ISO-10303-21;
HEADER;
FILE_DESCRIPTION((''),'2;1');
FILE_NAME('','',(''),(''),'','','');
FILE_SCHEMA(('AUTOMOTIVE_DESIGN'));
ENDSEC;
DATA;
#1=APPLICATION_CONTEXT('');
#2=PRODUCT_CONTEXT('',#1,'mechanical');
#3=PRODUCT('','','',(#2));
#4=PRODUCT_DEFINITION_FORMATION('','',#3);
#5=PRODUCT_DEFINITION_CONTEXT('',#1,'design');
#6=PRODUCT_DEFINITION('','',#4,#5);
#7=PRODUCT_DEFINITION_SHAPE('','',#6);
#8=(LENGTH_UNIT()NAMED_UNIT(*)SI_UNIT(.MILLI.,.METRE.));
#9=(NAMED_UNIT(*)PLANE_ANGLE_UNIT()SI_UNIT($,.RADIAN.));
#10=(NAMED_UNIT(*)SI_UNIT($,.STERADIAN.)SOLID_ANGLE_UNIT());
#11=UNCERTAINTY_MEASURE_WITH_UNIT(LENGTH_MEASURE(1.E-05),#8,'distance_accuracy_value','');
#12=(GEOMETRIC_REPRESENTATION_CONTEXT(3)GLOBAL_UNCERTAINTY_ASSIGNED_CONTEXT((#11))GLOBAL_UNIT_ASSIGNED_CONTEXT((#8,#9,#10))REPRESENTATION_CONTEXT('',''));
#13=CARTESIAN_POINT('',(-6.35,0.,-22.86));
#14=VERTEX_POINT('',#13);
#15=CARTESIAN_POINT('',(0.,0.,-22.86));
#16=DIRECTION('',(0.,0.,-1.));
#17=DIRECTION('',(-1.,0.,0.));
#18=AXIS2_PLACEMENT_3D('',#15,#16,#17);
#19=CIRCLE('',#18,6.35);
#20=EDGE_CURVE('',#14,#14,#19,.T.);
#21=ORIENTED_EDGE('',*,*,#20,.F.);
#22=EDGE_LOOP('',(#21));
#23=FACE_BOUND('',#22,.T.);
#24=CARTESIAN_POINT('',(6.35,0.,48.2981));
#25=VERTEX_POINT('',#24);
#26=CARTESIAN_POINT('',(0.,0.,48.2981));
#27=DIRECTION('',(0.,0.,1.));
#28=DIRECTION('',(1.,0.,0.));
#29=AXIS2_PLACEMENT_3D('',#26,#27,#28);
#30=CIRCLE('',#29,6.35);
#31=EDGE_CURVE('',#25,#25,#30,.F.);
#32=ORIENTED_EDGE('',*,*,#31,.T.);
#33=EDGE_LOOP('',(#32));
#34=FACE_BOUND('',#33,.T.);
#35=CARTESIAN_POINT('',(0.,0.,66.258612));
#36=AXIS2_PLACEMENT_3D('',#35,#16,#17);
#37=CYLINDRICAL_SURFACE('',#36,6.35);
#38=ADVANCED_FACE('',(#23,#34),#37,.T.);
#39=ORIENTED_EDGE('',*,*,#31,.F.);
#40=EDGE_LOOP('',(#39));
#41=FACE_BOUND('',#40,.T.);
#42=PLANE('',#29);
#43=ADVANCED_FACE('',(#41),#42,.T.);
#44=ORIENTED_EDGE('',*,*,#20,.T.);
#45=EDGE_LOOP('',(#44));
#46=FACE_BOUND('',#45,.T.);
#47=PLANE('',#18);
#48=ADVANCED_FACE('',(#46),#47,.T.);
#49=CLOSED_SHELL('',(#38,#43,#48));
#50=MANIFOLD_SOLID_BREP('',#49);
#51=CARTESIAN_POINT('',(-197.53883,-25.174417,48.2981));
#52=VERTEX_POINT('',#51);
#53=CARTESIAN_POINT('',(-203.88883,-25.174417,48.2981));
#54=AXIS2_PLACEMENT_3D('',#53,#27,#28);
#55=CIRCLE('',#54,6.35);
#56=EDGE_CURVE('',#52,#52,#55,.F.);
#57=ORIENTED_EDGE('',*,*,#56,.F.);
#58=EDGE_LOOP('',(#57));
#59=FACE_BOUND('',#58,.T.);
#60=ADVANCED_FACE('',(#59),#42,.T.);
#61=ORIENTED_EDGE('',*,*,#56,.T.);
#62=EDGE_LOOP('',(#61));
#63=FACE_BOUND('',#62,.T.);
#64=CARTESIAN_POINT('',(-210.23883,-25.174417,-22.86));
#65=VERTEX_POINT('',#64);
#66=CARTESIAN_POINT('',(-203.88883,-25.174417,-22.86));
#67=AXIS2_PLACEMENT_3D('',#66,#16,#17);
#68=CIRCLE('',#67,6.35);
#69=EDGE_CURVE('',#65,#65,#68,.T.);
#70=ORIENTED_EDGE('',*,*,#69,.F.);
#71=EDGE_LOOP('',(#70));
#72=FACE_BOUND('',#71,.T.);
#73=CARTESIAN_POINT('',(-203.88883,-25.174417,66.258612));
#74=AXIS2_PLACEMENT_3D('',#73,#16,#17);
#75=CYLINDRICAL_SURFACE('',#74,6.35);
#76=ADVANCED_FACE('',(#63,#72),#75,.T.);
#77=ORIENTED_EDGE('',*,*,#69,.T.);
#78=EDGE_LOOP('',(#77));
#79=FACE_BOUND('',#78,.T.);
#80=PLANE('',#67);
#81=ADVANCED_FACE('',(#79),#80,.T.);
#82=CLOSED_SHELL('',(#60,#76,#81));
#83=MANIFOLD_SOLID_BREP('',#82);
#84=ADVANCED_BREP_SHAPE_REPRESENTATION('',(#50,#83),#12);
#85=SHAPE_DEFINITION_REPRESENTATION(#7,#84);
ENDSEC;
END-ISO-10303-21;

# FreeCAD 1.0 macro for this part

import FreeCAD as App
import Part
import Sketcher
Q = App.Units.Quantity

doc = App.newDocument("Part")
body = doc.addObject("PartDesign::Body", "Body")

# Sketch on XY plane
sketch1 = doc.addObject("Sketcher::SketchObject", "Sketch")
body.addObject(sketch1)
sketch1.AttachmentSupport = (doc.XY_Plane, [""])
sketch1.MapMode = "FlatFace"
sketch1.AttachmentOffset = App.Placement(App.Vector(0, 0, -0.9 * 25.4), App.Rotation())
sketch1.addGeometry(Part.Circle(App.Vector(-203.88883, -25.174417, 0), App.Vector(0, 0, 1), 6.35), False)
sketch1.addConstraint(Sketcher.Constraint("Diameter", 0, Q("0.5 in")))
sketch1.addConstraint(Sketcher.Constraint("DistanceX", 0, 3, -1, 1, Q("203.88883 mm")))
sketch1.addConstraint(Sketcher.Constraint("DistanceY", 0, 3, -1, 1, Q("25.174417 mm")))
pad1 = doc.addObject("PartDesign::Pad", "Pad")
body.addObject(pad1)
pad1.Profile = sketch1
pad1.Length = Q("2.8015 in")
body2 = doc.addObject("PartDesign::Body", "Body001")

# Sketch on XY plane
sketch2 = doc.addObject("Sketcher::SketchObject", "Sketch001")
body2.addObject(sketch2)
sketch2.AttachmentSupport = (doc.getObject("XY_Plane001"), [""])
sketch2.MapMode = "FlatFace"
sketch2.AttachmentOffset = App.Placement(App.Vector(0, 0, -0.9 * 25.4), App.Rotation())
sketch2.addGeometry(Part.Circle(App.Vector(0, 0, 0), App.Vector(0, 0, 1), 6.35), False)
sketch2.addConstraint(Sketcher.Constraint("Coincident", 0, 3, -1, 1))
sketch2.addConstraint(Sketcher.Constraint("Diameter", 0, Q("0.5 in")))
pad2 = doc.addObject("PartDesign::Pad", "Pad001")
body2.addObject(pad2)
pad2.Profile = sketch2
pad2.Length = Q("2.8015 in")

doc.recompute()
